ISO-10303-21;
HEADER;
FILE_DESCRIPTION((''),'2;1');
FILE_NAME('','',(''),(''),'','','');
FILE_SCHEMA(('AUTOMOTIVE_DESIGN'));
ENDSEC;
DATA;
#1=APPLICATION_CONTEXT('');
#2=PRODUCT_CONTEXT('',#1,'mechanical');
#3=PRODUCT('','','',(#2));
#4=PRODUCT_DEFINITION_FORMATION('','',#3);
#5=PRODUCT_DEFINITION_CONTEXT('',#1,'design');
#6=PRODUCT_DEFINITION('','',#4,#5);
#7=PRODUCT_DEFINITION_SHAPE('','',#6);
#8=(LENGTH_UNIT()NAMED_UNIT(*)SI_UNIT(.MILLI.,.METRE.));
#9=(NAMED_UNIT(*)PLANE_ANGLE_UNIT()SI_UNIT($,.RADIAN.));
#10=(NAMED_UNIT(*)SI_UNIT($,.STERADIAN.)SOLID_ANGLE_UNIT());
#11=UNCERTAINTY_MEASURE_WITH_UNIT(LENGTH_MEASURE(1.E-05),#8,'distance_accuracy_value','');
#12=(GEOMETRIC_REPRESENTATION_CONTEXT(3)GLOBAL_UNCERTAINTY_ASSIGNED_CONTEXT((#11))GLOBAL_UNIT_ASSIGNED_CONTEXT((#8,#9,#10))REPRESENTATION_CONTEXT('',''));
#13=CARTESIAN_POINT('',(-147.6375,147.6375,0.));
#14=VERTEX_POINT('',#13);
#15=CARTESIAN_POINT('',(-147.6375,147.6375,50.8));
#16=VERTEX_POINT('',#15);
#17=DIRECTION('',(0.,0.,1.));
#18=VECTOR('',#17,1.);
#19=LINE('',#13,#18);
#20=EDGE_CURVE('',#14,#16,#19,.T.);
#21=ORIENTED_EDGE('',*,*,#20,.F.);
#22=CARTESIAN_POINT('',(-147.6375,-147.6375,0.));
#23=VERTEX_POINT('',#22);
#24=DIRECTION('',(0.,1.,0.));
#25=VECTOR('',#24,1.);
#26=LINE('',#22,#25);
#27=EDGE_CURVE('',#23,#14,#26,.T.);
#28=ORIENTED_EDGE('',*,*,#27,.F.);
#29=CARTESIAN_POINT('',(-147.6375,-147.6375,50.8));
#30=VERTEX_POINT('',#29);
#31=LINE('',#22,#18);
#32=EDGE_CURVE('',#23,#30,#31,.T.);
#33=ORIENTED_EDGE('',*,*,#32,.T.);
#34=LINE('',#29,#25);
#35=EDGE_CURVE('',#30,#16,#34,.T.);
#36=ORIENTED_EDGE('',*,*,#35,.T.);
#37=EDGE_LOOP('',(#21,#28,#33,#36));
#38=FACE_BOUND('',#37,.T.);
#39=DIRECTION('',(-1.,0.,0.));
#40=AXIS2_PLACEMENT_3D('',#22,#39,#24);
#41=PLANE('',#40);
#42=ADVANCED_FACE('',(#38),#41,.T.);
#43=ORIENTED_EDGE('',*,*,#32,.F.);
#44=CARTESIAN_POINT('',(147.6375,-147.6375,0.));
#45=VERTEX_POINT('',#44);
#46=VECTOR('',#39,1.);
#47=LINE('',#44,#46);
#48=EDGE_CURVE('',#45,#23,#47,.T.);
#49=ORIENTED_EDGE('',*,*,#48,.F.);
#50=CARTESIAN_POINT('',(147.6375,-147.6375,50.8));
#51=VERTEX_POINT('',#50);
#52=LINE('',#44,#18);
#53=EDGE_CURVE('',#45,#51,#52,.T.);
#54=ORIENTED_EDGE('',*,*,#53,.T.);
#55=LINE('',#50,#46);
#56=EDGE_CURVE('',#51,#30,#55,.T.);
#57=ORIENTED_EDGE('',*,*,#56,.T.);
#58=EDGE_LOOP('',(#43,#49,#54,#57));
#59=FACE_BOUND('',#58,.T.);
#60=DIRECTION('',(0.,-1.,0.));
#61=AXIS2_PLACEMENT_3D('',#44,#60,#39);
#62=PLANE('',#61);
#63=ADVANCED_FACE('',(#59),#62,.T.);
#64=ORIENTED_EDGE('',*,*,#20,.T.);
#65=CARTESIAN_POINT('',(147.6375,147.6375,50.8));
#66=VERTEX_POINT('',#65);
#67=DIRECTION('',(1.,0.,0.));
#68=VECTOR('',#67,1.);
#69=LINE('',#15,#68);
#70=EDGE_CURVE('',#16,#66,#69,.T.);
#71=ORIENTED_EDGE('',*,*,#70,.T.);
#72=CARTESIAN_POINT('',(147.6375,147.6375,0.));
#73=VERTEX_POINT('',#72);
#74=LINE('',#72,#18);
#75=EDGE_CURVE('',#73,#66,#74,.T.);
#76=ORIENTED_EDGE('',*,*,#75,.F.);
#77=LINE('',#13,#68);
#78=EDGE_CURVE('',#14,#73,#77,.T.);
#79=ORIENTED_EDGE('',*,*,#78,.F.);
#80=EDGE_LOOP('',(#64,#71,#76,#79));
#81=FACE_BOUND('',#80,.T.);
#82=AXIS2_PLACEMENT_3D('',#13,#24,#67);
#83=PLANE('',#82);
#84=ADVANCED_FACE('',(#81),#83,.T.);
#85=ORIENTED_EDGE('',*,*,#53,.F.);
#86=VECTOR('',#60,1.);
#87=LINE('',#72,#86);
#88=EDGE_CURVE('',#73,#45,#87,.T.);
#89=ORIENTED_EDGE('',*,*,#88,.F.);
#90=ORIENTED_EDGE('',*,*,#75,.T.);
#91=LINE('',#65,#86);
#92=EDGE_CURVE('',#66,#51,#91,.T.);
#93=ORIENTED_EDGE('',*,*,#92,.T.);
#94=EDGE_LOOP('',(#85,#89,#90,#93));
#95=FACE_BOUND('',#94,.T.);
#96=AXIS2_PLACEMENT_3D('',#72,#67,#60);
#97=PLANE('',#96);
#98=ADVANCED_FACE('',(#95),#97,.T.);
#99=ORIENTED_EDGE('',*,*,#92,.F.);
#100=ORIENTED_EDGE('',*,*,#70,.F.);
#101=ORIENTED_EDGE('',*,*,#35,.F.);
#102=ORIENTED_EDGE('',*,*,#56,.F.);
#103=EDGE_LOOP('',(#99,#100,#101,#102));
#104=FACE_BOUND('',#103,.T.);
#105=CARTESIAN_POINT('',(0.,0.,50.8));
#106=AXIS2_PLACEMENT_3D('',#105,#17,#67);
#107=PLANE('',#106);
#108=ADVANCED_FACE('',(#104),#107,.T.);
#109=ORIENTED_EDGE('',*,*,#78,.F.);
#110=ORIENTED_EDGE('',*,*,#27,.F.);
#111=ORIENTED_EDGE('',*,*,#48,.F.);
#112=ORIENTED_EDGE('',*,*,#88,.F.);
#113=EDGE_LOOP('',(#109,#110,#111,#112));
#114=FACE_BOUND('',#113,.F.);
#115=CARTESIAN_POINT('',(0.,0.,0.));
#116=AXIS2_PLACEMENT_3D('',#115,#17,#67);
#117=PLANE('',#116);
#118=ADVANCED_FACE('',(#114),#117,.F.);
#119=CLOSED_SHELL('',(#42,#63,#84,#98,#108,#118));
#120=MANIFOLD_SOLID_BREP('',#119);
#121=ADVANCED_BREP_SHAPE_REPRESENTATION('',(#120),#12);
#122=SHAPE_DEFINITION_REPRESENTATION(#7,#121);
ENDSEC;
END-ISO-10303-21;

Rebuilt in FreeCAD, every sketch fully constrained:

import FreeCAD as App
import Part
import Sketcher

V = App.Vector
Q = App.Units.Quantity


def add_polygon(sketch, points):
    """Adds a closed chain of lines whose ends are joined by coincident constraints."""
    first, n = sketch.GeometryCount, len(points)
    for a, b in zip(points, points[1:] + points[:1]):
        sketch.addGeometry(Part.LineSegment(App.Vector(*a, 0), App.Vector(*b, 0)), False)
    for i in range(n):
        sketch.addConstraint(Sketcher.Constraint("Coincident", first + i, 2, first + (i + 1) % n, 1))

doc = App.newDocument("Part")
body = doc.addObject("PartDesign::Body", "Body")

# Sketch on XY plane
sketch1 = body.newObject("Sketcher::SketchObject", "Sketch")
sketch1.AttachmentSupport = (doc.getObject("XY_Plane"), [""])
sketch1.MapMode = "FlatFace"
add_polygon(sketch1, [(148, 148), (-148, 148), (-148, -148), (148, -148)])  # lines 0-3
sketch1.addConstraint(Sketcher.Constraint("Horizontal", 0))
sketch1.addConstraint(Sketcher.Constraint("Vertical", 1))
sketch1.addConstraint(Sketcher.Constraint("Horizontal", 2))
sketch1.addConstraint(Sketcher.Constraint("Vertical", 3))
sketch1.addConstraint(Sketcher.Constraint("Symmetric", 0, 2, 2, 2, -1, 1))
sketch1.addConstraint(Sketcher.Constraint("Equal", 2, 1))
sketch1.addConstraint(Sketcher.Constraint("DistanceX", 0, 2, 0, 1, Q("11.625 in")))
pad1 = body.newObject("PartDesign::Pad", "Pad")
pad1.Profile = sketch1
pad1.Length = Q("2 in")

doc.recompute()
